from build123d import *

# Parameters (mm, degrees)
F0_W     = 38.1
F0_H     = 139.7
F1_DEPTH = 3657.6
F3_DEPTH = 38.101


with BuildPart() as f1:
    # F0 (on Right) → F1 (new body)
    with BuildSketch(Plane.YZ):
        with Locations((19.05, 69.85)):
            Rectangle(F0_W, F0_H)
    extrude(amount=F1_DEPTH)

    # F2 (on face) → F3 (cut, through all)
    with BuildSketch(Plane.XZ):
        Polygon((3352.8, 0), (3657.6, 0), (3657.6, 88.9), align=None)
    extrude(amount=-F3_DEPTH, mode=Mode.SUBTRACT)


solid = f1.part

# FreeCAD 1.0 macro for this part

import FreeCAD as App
import Part
import Sketcher
from FreeCAD import Vector
Q = App.Units.Quantity


def add_polygon(sketch, points):
    """Adds a closed chain of lines whose ends are joined by coincident constraints."""
    first, n = sketch.GeometryCount, len(points)
    for a, b in zip(points, points[1:] + points[:1]):
        sketch.addGeometry(Part.LineSegment(App.Vector(*a, 0), App.Vector(*b, 0)), False)
    for i in range(n):
        sketch.addConstraint(Sketcher.Constraint("Coincident", first + i, 2, first + (i + 1) % n, 1))

doc = App.newDocument("Part")
params = doc.addObject("Spreadsheet::Sheet", "Params")
for row, (alias, value) in enumerate([
    ("sketch1_width", "1.5 in"),
    ("sketch1_height", "5.5 in"),
    ("pad1_length", "144 in"),
    ("sketch2_width", "12 in"),
    ("sketch2_height", "3.5 in"),
], start=1):
    params.set(f"A{row}", alias)
    params.set(f"B{row}", "=" + value)
    params.setAlias(f"B{row}", alias)

body = doc.addObject("PartDesign::Body", "Body")

sketch1 = doc.addObject("Sketcher::SketchObject", "Sketch")
body.addObject(sketch1)
sketch1.AttachmentSupport = (doc.YZ_Plane, [""])
sketch1.MapMode = "FlatFace"
add_polygon(sketch1, [(0, 140), (0, 0), (38, 0), (38, 140)])
sketch1.addConstraint(Sketcher.Constraint("Vertical", 0))
sketch1.addConstraint(Sketcher.Constraint("Horizontal", 1))
sketch1.addConstraint(Sketcher.Constraint("Vertical", 2))
sketch1.addConstraint(Sketcher.Constraint("Horizontal", 3))
sketch1.addConstraint(Sketcher.Constraint("Coincident", 0, 2, -1, 1))
sketch1.addConstraint(Sketcher.Constraint("DistanceX", 1, 1, 1, 2, Q("1.5 in")))
sketch1.addConstraint(Sketcher.Constraint("DistanceY", 0, 2, 0, 1, Q("5.5 in")))
sketch1.setExpression("Constraints[9]", "Params.sketch1_width")
sketch1.setExpression("Constraints[10]", "Params.sketch1_height")
pad1 = doc.addObject("PartDesign::Pad", "Pad")
body.addObject(pad1)
pad1.Profile = sketch1
pad1.setExpression("Length", "Params.pad1_length")

sketch2 = doc.addObject("Sketcher::SketchObject", "Sketch001")
body.addObject(sketch2)
sketch2.AttachmentSupport = (doc.XZ_Plane, [""])
sketch2.MapMode = "FlatFace"
add_polygon(sketch2, [(3353, 0), (3658, 0), (3658, 89)])
sketch2.addConstraint(Sketcher.Constraint("Horizontal", 0))
sketch2.addConstraint(Sketcher.Constraint("Vertical", 1))
sketch2.addConstraint(Sketcher.Constraint("PointOnObject", 0, 2, -1))
sketch2.addConstraint(Sketcher.Constraint("DistanceX", 0, 1, 0, 2, Q("12 in")))
sketch2.addConstraint(Sketcher.Constraint("DistanceY", 1, 1, 1, 2, Q("3.5 in")))
sketch2.addConstraint(Sketcher.Constraint("DistanceX", -1, 1, 0, 2, Q("144 in")))
sketch2.setExpression("Constraints[6]", "Params.sketch2_width")
sketch2.setExpression("Constraints[7]", "Params.sketch2_height")
pocket1 = doc.addObject("PartDesign::Pocket", "Pocket")
body.addObject(pocket1)
pocket1.Profile = sketch2
pocket1.Type = "ThroughAll"

doc.recompute()
